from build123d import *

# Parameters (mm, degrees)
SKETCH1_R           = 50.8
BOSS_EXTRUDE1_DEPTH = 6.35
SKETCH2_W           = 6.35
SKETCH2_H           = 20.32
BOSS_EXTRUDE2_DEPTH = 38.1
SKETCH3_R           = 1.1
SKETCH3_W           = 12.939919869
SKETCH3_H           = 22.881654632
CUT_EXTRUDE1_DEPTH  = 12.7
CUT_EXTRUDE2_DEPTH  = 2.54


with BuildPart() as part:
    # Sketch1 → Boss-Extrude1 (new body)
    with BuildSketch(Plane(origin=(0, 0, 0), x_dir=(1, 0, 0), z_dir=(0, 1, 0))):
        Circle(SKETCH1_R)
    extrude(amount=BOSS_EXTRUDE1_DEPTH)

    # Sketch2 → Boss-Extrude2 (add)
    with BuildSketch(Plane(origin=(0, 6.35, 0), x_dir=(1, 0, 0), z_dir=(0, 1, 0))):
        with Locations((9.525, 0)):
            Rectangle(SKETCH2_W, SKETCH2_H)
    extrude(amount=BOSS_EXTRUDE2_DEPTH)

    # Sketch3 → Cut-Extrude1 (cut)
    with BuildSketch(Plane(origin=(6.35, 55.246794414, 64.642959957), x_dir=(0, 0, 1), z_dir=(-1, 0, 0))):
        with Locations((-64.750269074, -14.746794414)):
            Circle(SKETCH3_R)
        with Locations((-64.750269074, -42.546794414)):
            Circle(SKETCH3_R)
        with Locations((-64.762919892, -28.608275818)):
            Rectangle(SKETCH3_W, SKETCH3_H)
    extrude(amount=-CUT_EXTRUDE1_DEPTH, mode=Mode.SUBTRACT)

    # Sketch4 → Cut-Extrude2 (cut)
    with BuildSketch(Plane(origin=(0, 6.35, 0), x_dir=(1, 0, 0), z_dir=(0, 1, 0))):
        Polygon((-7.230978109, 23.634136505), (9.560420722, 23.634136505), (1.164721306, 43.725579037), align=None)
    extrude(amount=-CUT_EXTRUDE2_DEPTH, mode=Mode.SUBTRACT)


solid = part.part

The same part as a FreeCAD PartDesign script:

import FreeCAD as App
import Part
import Sketcher

V = App.Vector
Q = App.Units.Quantity

doc = App.newDocument("Part")
params = doc.addObject("Spreadsheet::Sheet", "Params")
for row, (alias, value) in enumerate([
    ("sketch1_diameter", "4 in"),
    ("pad1_length", "0.25 in"),
    ("sketch2_height", "0.8 in"),
    ("sketch2_width", "0.25 in"),
    ("pad2_length", "1.5 in"),
    ("pocket1_length", "0.5 in"),
    ("pocket2_length", "0.1 in"),
], start=1):
    params.set(f"A{row}", alias)
    params.set(f"B{row}", "=" + value)
    params.setAlias(f"B{row}", alias)

body = doc.addObject("PartDesign::Body", "Body")

# Sketch on XZ plane
sketch1 = body.newObject("Sketcher::SketchObject", "Sketch")
sketch1.AttachmentSupport = (doc.getObject("XZ_Plane"), [""])
sketch1.MapMode = "FlatFace"
sketch1.addGeometry(Part.Circle(V(0, 0, 0), V(0, 0, 1), 50.8), False)
sketch1.addConstraint(Sketcher.Constraint("Coincident", 0, 3, -1, 1))
sketch1.addConstraint(Sketcher.Constraint("Diameter", 0, Q("4 in")))
sketch1.setExpression("Constraints[1]", "Params.sketch1_diameter")
pad1 = body.newObject("PartDesign::Pad", "Pad")
pad1.Profile = sketch1
pad1.setExpression("Length", "Params.pad1_length")
pad1.Reversed = True

# Sketch on XZ plane
sketch2 = body.newObject("Sketcher::SketchObject", "Sketch001")
sketch2.AttachmentSupport = (doc.getObject("XZ_Plane"), [""])
sketch2.MapMode = "FlatFace"
sketch2.AttachmentOffset = App.Placement(V(0, 0, -0.25 * 25.4), App.Rotation())
sketch2.addGeometry(Part.LineSegment(V(6.35, -10.16, 0), V(6.35, 10.16, 0)), False)
sketch2.addGeometry(Part.LineSegment(V(6.35, 10.16, 0), V(12.7, 10.16, 0)), False)
sketch2.addGeometry(Part.LineSegment(V(12.7, 10.16, 0), V(12.7, -10.16, 0)), False)
sketch2.addGeometry(Part.LineSegment(V(12.7, -10.16, 0), V(6.35, -10.16, 0)), False)
sketch2.addConstraint(Sketcher.Constraint("Coincident", 0, 2, 1, 1))
sketch2.addConstraint(Sketcher.Constraint("Coincident", 1, 2, 2, 1))
sketch2.addConstraint(Sketcher.Constraint("Coincident", 2, 2, 3, 1))
sketch2.addConstraint(Sketcher.Constraint("Coincident", 3, 2, 0, 1))
sketch2.addConstraint(Sketcher.Constraint("Vertical", 0))
sketch2.addConstraint(Sketcher.Constraint("Horizontal", 1))
sketch2.addConstraint(Sketcher.Constraint("Vertical", 2))
sketch2.addConstraint(Sketcher.Constraint("Horizontal", 3))
sketch2.addConstraint(Sketcher.Constraint("DistanceY", 0, 1, 0, 2, Q("0.8 in")))
sketch2.addConstraint(Sketcher.Constraint("DistanceX", 1, 1, 1, 2, Q("0.25 in")))
sketch2.addConstraint(Sketcher.Constraint("DistanceY", -1, 1, 0, 2, Q("0.4 in")))
sketch2.addConstraint(Sketcher.Constraint("DistanceX", -1, 1, 1, 2, Q("0.5 in")))
sketch2.setExpression("Constraints[8]", "Params.sketch2_height")
sketch2.setExpression("Constraints[9]", "Params.sketch2_width")
pad2 = body.newObject("PartDesign::Pad", "Pad001")
pad2.Profile = sketch2
pad2.setExpression("Length", "Params.pad2_length")
pad2.Reversed = True

# Sketch on YZ plane
sketch3 = body.newObject("Sketcher::SketchObject", "Sketch002")
sketch3.AttachmentSupport = (doc.getObject("YZ_Plane"), [""])
sketch3.MapMode = "FlatFace"
sketch3.AttachmentOffset = App.Placement(V(0, 0, 0.25 * 25.4), App.Rotation())
sketch3.addGeometry(Part.Circle(V(40.5, -0.107309, 0), V(0, 0, 1), 1.1), False)
sketch3.addGeometry(Part.Circle(V(12.7, -0.107309, 0), V(0, 0, 1), 1.1), False)
sketch3.addGeometry(Part.LineSegment(V(38.079346, -6.58992, 0), V(15.197691, -6.58992, 0)), False)
sketch3.addGeometry(Part.LineSegment(V(15.197691, -6.58992, 0), V(15.197691, 6.35, 0)), False)
sketch3.addGeometry(Part.LineSegment(V(15.197691, 6.35, 0), V(38.079346, 6.35, 0)), False)
sketch3.addGeometry(Part.LineSegment(V(38.079346, 6.35, 0), V(38.079346, -6.58992, 0)), False)
sketch3.addConstraint(Sketcher.Constraint("Coincident", 2, 2, 3, 1))
sketch3.addConstraint(Sketcher.Constraint("Coincident", 3, 2, 4, 1))
sketch3.addConstraint(Sketcher.Constraint("Coincident", 4, 2, 5, 1))
sketch3.addConstraint(Sketcher.Constraint("Coincident", 5, 2, 2, 1))
sketch3.addConstraint(Sketcher.Constraint("Horizontal", 2))
sketch3.addConstraint(Sketcher.Constraint("Vertical", 3))
sketch3.addConstraint(Sketcher.Constraint("Horizontal", 4))
sketch3.addConstraint(Sketcher.Constraint("Vertical", 5))
sketch3.addConstraint(Sketcher.Constraint("Equal", 0, 1))
sketch3.addConstraint(Sketcher.Constraint("Horizontal", 0, 3, 1, 3))
sketch3.addConstraint(Sketcher.Constraint("DistanceX", -1, 1, 1, 3, Q("0.5 in")))
sketch3.addConstraint(Sketcher.Constraint("Diameter", 0, Q("2.2 mm")))
sketch3.addConstraint(Sketcher.Constraint("DistanceY", -1, 1, 3, 2, Q("0.25 in")))
sketch3.addConstraint(Sketcher.Constraint("DistanceY", 3, 1, 3, 2, Q("12.93992 mm")))
sketch3.addConstraint(Sketcher.Constraint("DistanceX", -1, 1, 0, 3, Q("40.5 mm")))
sketch3.addConstraint(Sketcher.Constraint("DistanceX", 2, 2, 2, 1, Q("22.881655 mm")))
sketch3.addConstraint(Sketcher.Constraint("DistanceY", 0, 3, -1, 1, Q("0.107309 mm")))
sketch3.addConstraint(Sketcher.Constraint("DistanceX", -1, 1, 2, 2, Q("15.197691 mm")))
pocket1 = body.newObject("PartDesign::Pocket", "Pocket")
pocket1.Profile = sketch3
pocket1.setExpression("Length", "Params.pocket1_length")
pocket1.Reversed = True

# Sketch on XZ plane
sketch4 = body.newObject("Sketcher::SketchObject", "Sketch003")
sketch4.AttachmentSupport = (doc.getObject("XZ_Plane"), [""])
sketch4.MapMode = "FlatFace"
sketch4.AttachmentOffset = App.Placement(V(0, 0, -0.25 * 25.4), App.Rotation())
sketch4.addGeometry(Part.LineSegment(V(-7.230978, -23.634137, 0), V(9.560421, -23.634137, 0)), False)
sketch4.addGeometry(Part.LineSegment(V(9.560421, -23.634137, 0), V(1.164721, -43.725579, 0)), False)
sketch4.addGeometry(Part.LineSegment(V(1.164721, -43.725579, 0), V(-7.230978, -23.634137, 0)), False)
sketch4.addConstraint(Sketcher.Constraint("Coincident", 0, 2, 1, 1))
sketch4.addConstraint(Sketcher.Constraint("Coincident", 1, 2, 2, 1))
sketch4.addConstraint(Sketcher.Constraint("Coincident", 2, 2, 0, 1))
sketch4.addConstraint(Sketcher.Constraint("Horizontal", 0))
sketch4.addConstraint(Sketcher.Constraint("Equal", 1, 2))
sketch4.addConstraint(Sketcher.Constraint("DistanceX", 0, 1, 0, 2, Q("16.791399 mm")))
sketch4.addConstraint(Sketcher.Constraint("DistanceX", -1, 1, 0, 2, Q("9.560421 mm")))
sketch4.addConstraint(Sketcher.Constraint("DistanceY", 1, 2, -1, 1, Q("43.725579 mm")))
sketch4.addConstraint(Sketcher.Constraint("Distance", 1, Q("21.775074 mm")))
pocket2 = body.newObject("PartDesign::Pocket", "Pocket001")
pocket2.Profile = sketch4
pocket2.setExpression("Length", "Params.pocket2_length")
pocket2.Reversed = True

doc.recompute()
